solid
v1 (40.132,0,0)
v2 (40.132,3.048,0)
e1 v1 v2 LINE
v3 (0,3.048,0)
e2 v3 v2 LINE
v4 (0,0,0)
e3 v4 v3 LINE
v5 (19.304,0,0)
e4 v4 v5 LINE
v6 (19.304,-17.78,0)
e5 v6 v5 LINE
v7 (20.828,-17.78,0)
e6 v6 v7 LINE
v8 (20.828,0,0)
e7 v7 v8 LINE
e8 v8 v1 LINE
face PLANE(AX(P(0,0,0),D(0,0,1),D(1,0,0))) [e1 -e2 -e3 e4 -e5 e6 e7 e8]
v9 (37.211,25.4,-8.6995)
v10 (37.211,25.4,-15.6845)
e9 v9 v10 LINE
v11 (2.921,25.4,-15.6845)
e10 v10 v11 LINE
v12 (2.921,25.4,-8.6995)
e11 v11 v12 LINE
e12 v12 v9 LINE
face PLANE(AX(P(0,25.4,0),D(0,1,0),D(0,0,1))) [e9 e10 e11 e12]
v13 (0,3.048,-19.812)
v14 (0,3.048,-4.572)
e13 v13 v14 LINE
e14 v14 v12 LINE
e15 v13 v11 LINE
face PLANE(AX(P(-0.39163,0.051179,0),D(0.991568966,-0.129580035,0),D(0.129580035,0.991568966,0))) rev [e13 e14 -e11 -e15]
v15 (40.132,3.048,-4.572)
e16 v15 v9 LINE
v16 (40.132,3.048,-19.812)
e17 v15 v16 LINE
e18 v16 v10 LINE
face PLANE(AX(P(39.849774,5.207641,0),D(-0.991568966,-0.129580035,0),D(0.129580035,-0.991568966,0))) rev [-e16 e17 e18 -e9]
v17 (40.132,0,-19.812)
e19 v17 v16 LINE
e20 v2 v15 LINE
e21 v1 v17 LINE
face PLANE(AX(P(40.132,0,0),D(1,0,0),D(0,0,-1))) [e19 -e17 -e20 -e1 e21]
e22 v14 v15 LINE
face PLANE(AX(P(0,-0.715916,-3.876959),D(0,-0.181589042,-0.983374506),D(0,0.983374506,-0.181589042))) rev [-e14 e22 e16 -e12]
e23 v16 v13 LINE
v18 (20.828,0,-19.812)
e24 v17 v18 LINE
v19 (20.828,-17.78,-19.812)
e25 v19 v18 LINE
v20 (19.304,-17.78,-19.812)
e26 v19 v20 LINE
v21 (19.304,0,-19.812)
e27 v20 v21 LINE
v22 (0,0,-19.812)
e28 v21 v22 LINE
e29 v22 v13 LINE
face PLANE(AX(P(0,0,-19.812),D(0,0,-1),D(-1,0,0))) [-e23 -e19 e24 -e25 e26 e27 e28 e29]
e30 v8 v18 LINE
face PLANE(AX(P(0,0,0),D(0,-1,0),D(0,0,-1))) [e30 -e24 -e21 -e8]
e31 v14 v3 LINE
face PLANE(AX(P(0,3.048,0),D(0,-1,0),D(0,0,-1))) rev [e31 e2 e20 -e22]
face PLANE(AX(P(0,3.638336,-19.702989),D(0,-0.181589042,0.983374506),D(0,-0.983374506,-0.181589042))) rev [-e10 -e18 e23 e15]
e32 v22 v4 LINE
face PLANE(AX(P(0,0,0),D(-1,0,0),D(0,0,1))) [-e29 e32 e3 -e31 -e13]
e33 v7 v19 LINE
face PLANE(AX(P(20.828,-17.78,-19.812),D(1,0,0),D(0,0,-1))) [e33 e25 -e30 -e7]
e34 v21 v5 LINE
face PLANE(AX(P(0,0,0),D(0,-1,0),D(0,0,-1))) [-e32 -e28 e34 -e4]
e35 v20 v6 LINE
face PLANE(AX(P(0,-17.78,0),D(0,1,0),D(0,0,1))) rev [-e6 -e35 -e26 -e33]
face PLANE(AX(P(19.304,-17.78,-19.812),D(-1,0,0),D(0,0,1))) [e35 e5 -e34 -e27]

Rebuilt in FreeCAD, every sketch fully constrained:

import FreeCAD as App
import Part
import Sketcher

V = App.Vector
Q = App.Units.Quantity


def add_polygon(sketch, points):
    """Adds a closed chain of lines whose ends are joined by coincident constraints."""
    first, n = sketch.GeometryCount, len(points)
    for a, b in zip(points, points[1:] + points[:1]):
        sketch.addGeometry(Part.LineSegment(App.Vector(*a, 0), App.Vector(*b, 0)), False)
    for i in range(n):
        sketch.addConstraint(Sketcher.Constraint("Coincident", first + i, 2, first + (i + 1) % n, 1))

doc = App.newDocument("Part")
params = doc.addObject("Spreadsheet::Sheet", "Params")
for row, (alias, value) in enumerate([
    ("sketch1_width", "1.58 in"),
    ("sketch1_height", "0.78 in"),
    ("pad1_length", "0.12 in"),
    ("sketch2_height", "0.6 in"),
    ("sketch2_width", "1.58 in"),
    ("sketch3_width", "1.35 in"),
    ("sketch3_height", "0.275 in"),
    ("sketch4_width", "0.06 in"),
    ("sketch4_height", "0.78 in"),
    ("pad2_length", "0.7 in"),
], start=1):
    params.set(f"A{row}", alias)
    params.set(f"B{row}", "=" + value)
    params.setAlias(f"B{row}", alias)

body = doc.addObject("PartDesign::Body", "Body")

# Sketch on XZ plane
sketch1 = doc.addObject("Sketcher::SketchObject", "Sketch")
body.addObject(sketch1)
sketch1.AttachmentSupport = (doc.XZ_Plane, [""])
sketch1.MapMode = "FlatFace"
sketch1.AttachmentOffset = App.Placement(V(0, 0, -0.12 * 25.4), App.Rotation())
add_polygon(sketch1, [(0, -19.812), (0, 0), (40.132, 0), (40.132, -19.812)])  # lines 0-3
sketch1.addConstraint(Sketcher.Constraint("Vertical", 0))
sketch1.addConstraint(Sketcher.Constraint("Horizontal", 1))
sketch1.addConstraint(Sketcher.Constraint("Vertical", 2))
sketch1.addConstraint(Sketcher.Constraint("Horizontal", 3))
sketch1.addConstraint(Sketcher.Constraint("Coincident", 0, 2, -1, 1))
sketch1.addConstraint(Sketcher.Constraint("DistanceX", 1, 1, 1, 2, Q("1.58 in")))
sketch1.addConstraint(Sketcher.Constraint("DistanceY", 0, 1, 0, 2, Q("0.78 in")))
sketch1.setExpression("Constraints[9]", "Params.sketch1_width")
sketch1.setExpression("Constraints[10]", "Params.sketch1_height")
pad1 = doc.addObject("PartDesign::Pad", "Pad")
body.addObject(pad1)
pad1.Profile = sketch1
pad1.setExpression("Length", "Params.pad1_length")

# Sketch on XZ plane
sketch2 = doc.addObject("Sketcher::SketchObject", "Sketch001")
body.addObject(sketch2)
sketch2.AttachmentSupport = (doc.XZ_Plane, [""])
sketch2.MapMode = "FlatFace"
sketch2.AttachmentOffset = App.Placement(V(0, 0, -0.12 * 25.4), App.Rotation())
add_polygon(sketch2, [(0, -19.812), (0, -4.572), (40.132, -4.572), (40.132, -19.812)])  # lines 0-3
sketch2.addConstraint(Sketcher.Constraint("Vertical", 0))
sketch2.addConstraint(Sketcher.Constraint("Horizontal", 1))
sketch2.addConstraint(Sketcher.Constraint("Vertical", 2))
sketch2.addConstraint(Sketcher.Constraint("Horizontal", 3))
sketch2.addConstraint(Sketcher.Constraint("PointOnObject", 0, 2, -2))
sketch2.addConstraint(Sketcher.Constraint("DistanceY", 0, 1, 0, 2, Q("0.6 in")))
sketch2.addConstraint(Sketcher.Constraint("DistanceX", 1, 1, 1, 2, Q("1.58 in")))
sketch2.addConstraint(Sketcher.Constraint("DistanceY", 0, 2, -1, 1, Q("0.18 in")))
sketch2.setExpression("Constraints[9]", "Params.sketch2_height")
sketch2.setExpression("Constraints[10]", "Params.sketch2_width")

# Sketch on XZ plane
sketch3 = doc.addObject("Sketcher::SketchObject", "Sketch002")
body.addObject(sketch3)
sketch3.AttachmentSupport = (doc.XZ_Plane, [""])
sketch3.MapMode = "FlatFace"
sketch3.AttachmentOffset = App.Placement(V(0, 0, -1 * 25.4), App.Rotation())
add_polygon(sketch3, [(2.921, -15.6845), (2.921, -8.6995), (37.211, -8.6995), (37.211, -15.6845)])  # lines 0-3
sketch3.addConstraint(Sketcher.Constraint("Vertical", 0))
sketch3.addConstraint(Sketcher.Constraint("Horizontal", 1))
sketch3.addConstraint(Sketcher.Constraint("Vertical", 2))
sketch3.addConstraint(Sketcher.Constraint("Horizontal", 3))
sketch3.addConstraint(Sketcher.Constraint("DistanceX", 1, 1, 1, 2, Q("1.35 in")))
sketch3.addConstraint(Sketcher.Constraint("DistanceY", 0, 1, 0, 2, Q("0.275 in")))
sketch3.addConstraint(Sketcher.Constraint("DistanceX", -1, 1, 0, 2, Q("0.115 in")))
sketch3.addConstraint(Sketcher.Constraint("DistanceY", 0, 2, -1, 1, Q("0.3425 in")))
sketch3.setExpression("Constraints[8]", "Params.sketch3_width")
sketch3.setExpression("Constraints[9]", "Params.sketch3_height")

additiveloft = doc.addObject("PartDesign::AdditiveLoft", "AdditiveLoft")
body.addObject(additiveloft)
additiveloft.Profile = sketch2
additiveloft.Sections = [sketch3]

# Sketch on XZ plane
sketch4 = doc.addObject("Sketcher::SketchObject", "Sketch003")
body.addObject(sketch4)
sketch4.AttachmentSupport = (doc.XZ_Plane, [""])
sketch4.MapMode = "FlatFace"
add_polygon(sketch4, [(19.304, -19.812), (19.304, 0), (20.828, 0), (20.828, -19.812)])  # lines 0-3
sketch4.addConstraint(Sketcher.Constraint("Vertical", 0))
sketch4.addConstraint(Sketcher.Constraint("Horizontal", 1))
sketch4.addConstraint(Sketcher.Constraint("Vertical", 2))
sketch4.addConstraint(Sketcher.Constraint("Horizontal", 3))
sketch4.addConstraint(Sketcher.Constraint("PointOnObject", 0, 2, -1))
sketch4.addConstraint(Sketcher.Constraint("DistanceX", 1, 1, 1, 2, Q("0.06 in")))
sketch4.addConstraint(Sketcher.Constraint("DistanceY", 0, 1, 0, 2, Q("0.78 in")))
sketch4.addConstraint(Sketcher.Constraint("DistanceX", -1, 1, 0, 2, Q("0.76 in")))
sketch4.setExpression("Constraints[9]", "Params.sketch4_width")
sketch4.setExpression("Constraints[10]", "Params.sketch4_height")
pad2 = doc.addObject("PartDesign::Pad", "Pad001")
body.addObject(pad2)
pad2.Profile = sketch4
pad2.setExpression("Length", "Params.pad2_length")

doc.recompute()
